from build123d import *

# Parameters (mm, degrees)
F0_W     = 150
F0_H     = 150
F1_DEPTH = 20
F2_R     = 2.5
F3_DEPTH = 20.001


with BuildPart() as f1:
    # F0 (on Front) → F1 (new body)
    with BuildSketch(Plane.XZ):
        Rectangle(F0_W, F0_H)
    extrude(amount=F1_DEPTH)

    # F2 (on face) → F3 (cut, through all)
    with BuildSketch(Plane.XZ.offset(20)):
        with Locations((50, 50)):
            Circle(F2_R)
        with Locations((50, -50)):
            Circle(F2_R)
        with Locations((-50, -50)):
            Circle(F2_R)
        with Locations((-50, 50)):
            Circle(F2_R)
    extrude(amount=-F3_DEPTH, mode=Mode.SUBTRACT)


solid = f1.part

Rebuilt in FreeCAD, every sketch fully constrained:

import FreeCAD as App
import Part
import Sketcher
from FreeCAD import Vector


def add_polygon(sketch, points):
    """Adds a closed chain of lines whose ends are joined by coincident constraints."""
    first, n = sketch.GeometryCount, len(points)
    for a, b in zip(points, points[1:] + points[:1]):
        sketch.addGeometry(Part.LineSegment(App.Vector(*a, 0), App.Vector(*b, 0)), False)
    for i in range(n):
        sketch.addConstraint(Sketcher.Constraint("Coincident", first + i, 2, first + (i + 1) % n, 1))

doc = App.newDocument("Part")
params = doc.addObject("Spreadsheet::Sheet", "Params")
for row, (alias, value) in enumerate([
    ("sketch1_width", "150 mm"),
    ("pad1_length", "20 mm"),
    ("sketch2_diameter", "5 mm"),
], start=1):
    params.set(f"A{row}", alias)
    params.set(f"B{row}", "=" + value)
    params.setAlias(f"B{row}", alias)

body = doc.addObject("PartDesign::Body", "Body")

sketch1 = body.newObject("Sketcher::SketchObject", "Sketch")
sketch1.AttachmentSupport = (doc.getObject("XZ_Plane"), [""])
sketch1.MapMode = "FlatFace"
add_polygon(sketch1, [(-75, 75), (-75, -75), (75, -75), (75, 75)])
sketch1.addConstraint(Sketcher.Constraint("Vertical", 0))
sketch1.addConstraint(Sketcher.Constraint("Horizontal", 1))
sketch1.addConstraint(Sketcher.Constraint("Vertical", 2))
sketch1.addConstraint(Sketcher.Constraint("Horizontal", 3))
sketch1.addConstraint(Sketcher.Constraint("Symmetric", 0, 2, 2, 2, -1, 1))
sketch1.addConstraint(Sketcher.Constraint("Equal", 3, 0))
sketch1.addConstraint(Sketcher.Constraint("DistanceX", 1, 1, 1, 2, 150.0))
sketch1.setExpression("Constraints[10]", "Params.sketch1_width")
pad1 = body.newObject("PartDesign::Pad", "Pad")
pad1.Profile = sketch1
pad1.setExpression("Length", "Params.pad1_length")

sketch2 = body.newObject("Sketcher::SketchObject", "Sketch001")
sketch2.AttachmentSupport = (doc.getObject("XZ_Plane"), [""])
sketch2.MapMode = "FlatFace"
sketch2.AttachmentOffset = App.Placement(Vector(0, 0, 20), App.Rotation())
sketch2.addGeometry(Part.Circle(Vector(50, 50, 0), Vector(0, 0, 1), 2.5), False)
sketch2.addGeometry(Part.Circle(Vector(50, -50, 0), Vector(0, 0, 1), 2.5), False)
sketch2.addGeometry(Part.Circle(Vector(-50, -50, 0), Vector(0, 0, 1), 2.5), False)
sketch2.addGeometry(Part.Circle(Vector(-50, 50, 0), Vector(0, 0, 1), 2.5), False)
sketch2.addConstraint(Sketcher.Constraint("Equal", 0, 1))
sketch2.addConstraint(Sketcher.Constraint("Equal", 1, 2))
sketch2.addConstraint(Sketcher.Constraint("Equal", 2, 3))
sketch2.addConstraint(Sketcher.Constraint("Symmetric", 0, 3, 2, 3, -1, 1))
sketch2.addConstraint(Sketcher.Constraint("Symmetric", 1, 3, 3, 3, -1, 1))
sketch2.addConstraint(Sketcher.Constraint("Symmetric", 1, 3, 2, 3, -2))
sketch2.addConstraint(Sketcher.Constraint("Diameter", 0, 5.0))
sketch2.addConstraint(Sketcher.Constraint("DistanceX", -1, 1, 0, 3, 50.0))
sketch2.addConstraint(Sketcher.Constraint("DistanceY", -1, 1, 0, 3, 50.0))
sketch2.setExpression("Constraints[6]", "Params.sketch2_diameter")
pocket1 = body.newObject("PartDesign::Pocket", "Pocket")
pocket1.Profile = sketch2
pocket1.Type = "ThroughAll"

doc.recompute()
